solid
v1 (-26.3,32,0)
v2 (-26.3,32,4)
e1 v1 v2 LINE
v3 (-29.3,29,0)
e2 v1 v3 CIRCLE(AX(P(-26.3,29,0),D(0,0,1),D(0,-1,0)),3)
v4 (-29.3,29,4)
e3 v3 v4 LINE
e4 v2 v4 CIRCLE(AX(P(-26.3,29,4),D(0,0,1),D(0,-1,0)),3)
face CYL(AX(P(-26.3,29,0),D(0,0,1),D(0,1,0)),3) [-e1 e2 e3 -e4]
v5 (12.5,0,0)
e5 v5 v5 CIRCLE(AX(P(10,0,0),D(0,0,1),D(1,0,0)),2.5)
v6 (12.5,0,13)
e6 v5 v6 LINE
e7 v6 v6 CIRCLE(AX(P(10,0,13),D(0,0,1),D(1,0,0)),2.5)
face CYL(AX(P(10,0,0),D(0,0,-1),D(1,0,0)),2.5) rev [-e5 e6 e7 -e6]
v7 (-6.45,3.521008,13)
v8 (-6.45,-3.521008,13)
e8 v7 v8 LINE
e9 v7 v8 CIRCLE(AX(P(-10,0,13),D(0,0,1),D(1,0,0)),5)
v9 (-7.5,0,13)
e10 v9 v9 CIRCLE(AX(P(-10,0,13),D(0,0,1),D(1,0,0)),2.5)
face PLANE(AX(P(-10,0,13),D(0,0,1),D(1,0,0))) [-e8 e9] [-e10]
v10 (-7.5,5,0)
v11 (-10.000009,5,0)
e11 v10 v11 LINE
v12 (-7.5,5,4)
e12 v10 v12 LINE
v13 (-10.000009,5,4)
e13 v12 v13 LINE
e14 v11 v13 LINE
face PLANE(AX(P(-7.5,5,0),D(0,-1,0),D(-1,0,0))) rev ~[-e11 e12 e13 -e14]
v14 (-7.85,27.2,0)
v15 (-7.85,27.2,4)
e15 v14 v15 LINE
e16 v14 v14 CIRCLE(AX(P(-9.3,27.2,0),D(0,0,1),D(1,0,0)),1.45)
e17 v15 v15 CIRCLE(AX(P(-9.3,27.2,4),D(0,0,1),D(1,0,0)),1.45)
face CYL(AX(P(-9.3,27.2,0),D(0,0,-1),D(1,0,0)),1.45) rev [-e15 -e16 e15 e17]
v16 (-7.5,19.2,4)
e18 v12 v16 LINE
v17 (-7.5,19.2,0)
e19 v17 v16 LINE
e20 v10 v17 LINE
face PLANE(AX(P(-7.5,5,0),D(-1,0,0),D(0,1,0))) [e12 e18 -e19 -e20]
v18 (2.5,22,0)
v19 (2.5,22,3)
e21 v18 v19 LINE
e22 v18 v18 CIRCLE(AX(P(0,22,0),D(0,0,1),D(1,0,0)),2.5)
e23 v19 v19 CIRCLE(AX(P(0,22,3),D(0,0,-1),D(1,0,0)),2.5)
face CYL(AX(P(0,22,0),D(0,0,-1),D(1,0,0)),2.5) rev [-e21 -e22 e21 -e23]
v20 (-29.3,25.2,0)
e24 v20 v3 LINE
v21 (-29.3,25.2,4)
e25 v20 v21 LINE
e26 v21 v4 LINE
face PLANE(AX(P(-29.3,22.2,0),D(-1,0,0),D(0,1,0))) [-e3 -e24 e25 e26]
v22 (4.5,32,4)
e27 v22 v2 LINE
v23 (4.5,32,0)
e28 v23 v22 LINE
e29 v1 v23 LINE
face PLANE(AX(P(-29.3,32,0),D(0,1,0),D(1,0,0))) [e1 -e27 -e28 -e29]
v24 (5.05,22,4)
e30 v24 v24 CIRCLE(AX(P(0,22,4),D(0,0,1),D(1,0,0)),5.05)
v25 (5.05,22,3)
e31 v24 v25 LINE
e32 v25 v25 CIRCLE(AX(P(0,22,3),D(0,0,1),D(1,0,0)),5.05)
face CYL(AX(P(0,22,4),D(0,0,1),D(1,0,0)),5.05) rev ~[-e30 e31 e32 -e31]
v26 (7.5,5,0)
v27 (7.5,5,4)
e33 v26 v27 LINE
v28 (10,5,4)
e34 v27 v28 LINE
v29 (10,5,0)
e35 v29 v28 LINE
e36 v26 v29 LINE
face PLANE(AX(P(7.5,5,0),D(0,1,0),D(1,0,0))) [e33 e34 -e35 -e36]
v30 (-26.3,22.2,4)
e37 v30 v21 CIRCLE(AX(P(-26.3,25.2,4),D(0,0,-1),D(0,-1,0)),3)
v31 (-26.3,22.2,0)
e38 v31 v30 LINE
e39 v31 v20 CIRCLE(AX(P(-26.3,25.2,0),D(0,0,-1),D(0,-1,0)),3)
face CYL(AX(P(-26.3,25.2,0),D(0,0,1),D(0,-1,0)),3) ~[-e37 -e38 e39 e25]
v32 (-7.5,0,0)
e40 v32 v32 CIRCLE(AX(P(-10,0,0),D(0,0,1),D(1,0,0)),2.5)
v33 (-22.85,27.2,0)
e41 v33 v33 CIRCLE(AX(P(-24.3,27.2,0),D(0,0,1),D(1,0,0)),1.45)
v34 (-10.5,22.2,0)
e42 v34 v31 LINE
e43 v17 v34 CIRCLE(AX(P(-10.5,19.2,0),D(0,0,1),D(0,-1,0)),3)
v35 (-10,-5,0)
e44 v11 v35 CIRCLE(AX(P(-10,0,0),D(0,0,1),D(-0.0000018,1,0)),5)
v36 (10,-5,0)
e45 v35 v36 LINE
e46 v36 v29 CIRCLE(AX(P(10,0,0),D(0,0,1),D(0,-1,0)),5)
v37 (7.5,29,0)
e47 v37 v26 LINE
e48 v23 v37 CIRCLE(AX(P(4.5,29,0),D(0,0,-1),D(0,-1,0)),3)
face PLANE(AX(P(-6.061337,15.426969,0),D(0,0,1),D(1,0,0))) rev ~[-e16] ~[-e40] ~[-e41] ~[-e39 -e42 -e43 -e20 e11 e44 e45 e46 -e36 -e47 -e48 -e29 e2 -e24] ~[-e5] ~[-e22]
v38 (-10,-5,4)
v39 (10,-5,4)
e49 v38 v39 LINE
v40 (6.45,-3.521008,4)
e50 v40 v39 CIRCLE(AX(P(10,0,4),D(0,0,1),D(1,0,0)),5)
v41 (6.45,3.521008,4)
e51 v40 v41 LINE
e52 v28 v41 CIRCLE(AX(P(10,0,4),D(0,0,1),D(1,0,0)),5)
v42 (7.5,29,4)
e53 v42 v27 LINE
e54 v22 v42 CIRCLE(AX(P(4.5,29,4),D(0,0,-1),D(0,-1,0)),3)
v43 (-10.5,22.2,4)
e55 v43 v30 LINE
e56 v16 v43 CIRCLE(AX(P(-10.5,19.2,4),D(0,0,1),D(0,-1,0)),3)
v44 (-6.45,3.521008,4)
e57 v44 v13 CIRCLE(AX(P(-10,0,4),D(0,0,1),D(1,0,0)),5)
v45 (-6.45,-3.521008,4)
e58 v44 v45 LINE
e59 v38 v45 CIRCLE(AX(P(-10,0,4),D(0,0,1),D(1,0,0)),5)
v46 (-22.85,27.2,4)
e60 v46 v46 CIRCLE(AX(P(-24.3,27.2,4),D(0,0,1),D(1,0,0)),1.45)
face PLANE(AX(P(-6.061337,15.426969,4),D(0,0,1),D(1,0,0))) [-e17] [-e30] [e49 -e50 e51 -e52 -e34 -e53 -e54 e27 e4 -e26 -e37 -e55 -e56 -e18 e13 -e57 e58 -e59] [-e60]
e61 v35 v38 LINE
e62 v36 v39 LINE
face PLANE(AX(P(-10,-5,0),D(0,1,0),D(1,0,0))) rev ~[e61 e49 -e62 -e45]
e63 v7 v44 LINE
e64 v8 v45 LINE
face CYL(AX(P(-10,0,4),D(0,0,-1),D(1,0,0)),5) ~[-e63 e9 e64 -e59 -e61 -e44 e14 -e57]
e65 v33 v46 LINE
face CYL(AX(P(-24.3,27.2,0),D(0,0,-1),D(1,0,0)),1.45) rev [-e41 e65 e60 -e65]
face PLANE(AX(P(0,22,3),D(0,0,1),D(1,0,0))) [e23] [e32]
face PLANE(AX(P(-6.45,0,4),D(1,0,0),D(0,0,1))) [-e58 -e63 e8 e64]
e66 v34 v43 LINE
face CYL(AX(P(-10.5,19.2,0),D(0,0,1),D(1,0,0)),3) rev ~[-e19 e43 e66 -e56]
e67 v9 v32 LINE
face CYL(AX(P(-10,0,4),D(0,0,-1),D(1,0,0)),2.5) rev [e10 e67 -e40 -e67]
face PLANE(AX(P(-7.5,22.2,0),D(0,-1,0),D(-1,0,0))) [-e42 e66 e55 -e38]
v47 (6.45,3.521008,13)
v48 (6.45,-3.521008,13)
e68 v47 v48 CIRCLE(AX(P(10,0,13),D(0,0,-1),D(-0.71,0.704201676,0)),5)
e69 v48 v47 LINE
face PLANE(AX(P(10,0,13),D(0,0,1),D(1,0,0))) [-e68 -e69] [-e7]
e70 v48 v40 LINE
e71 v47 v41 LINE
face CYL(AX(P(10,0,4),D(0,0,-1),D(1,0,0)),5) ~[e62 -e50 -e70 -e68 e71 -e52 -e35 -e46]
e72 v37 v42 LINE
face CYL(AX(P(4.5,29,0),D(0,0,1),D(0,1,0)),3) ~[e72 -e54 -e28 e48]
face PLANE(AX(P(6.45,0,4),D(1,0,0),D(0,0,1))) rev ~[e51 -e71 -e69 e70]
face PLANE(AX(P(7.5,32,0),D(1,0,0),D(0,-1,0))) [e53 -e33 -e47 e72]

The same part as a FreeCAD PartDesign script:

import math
import FreeCAD as App
import Part
import Sketcher
from FreeCAD import Vector
Q = App.Units.Quantity


def edges_at(feature, points):
    """Names of the edges that pass closest to the given points."""
    edges = feature.Shape.Edges
    near = lambda p: min(range(len(edges)), key=lambda i: edges[i].distToShape(Part.Vertex(*p))[0])
    return sorted({f"Edge{near(p) + 1}" for p in points})

doc = App.newDocument("Part")
body = doc.addObject("PartDesign::Body", "Body")

# Sketch on XY plane
sketch1 = body.newObject("Sketcher::SketchObject", "Sketch")
sketch1.AttachmentSupport = (doc.getObject("XY_Plane"), [""])
sketch1.MapMode = "FlatFace"
sketch1.addGeometry([
    Part.LineSegment(Vector(-10, -5, 0), Vector(10, -5, 0)),  # 0
    Part.ArcOfCircle(Part.Circle(Vector(10, 0, 0), Vector(0, 0, 1), 5), math.radians(-90), math.radians(90)),  # 1
    Part.LineSegment(Vector(10, 5, 0), Vector(7.5, 5, 0)),  # 2
    Part.LineSegment(Vector(7.5, 5, 0), Vector(7.5, 32, 0)),  # 3
    Part.LineSegment(Vector(7.5, 32, 0), Vector(-29.3, 32, 0)),  # 4
    Part.LineSegment(Vector(-29.3, 32, 0), Vector(-29.3, 22.2, 0)),  # 5
    Part.LineSegment(Vector(-29.3, 22.2, 0), Vector(-7.5, 22.2, 0)),  # 6
    Part.LineSegment(Vector(-7.5, 22.2, 0), Vector(-7.5, 5, 0)),  # 7
    Part.LineSegment(Vector(-7.5, 5, 0), Vector(-10.000009, 5, 0)),  # 8
    Part.ArcOfCircle(Part.Circle(Vector(-10, 0, 0), Vector(0, 0, 1), 5), math.radians(90.000103), math.radians(270)),  # 9
    Part.Circle(Vector(-10, 0, 0), Vector(0, 0, 1), 2.5),  # 10
    Part.Circle(Vector(10, 0, 0), Vector(0, 0, 1), 2.5),  # 11
    Part.Circle(Vector(-24.3, 27.2, 0), Vector(0, 0, 1), 1.45),  # 12
    Part.Circle(Vector(-9.3, 27.2, 0), Vector(0, 0, 1), 1.45),  # 13
    Part.Circle(Vector(0, 22, 0), Vector(0, 0, 1), 2.5),  # 14
], False)
sketch1.addConstraint([
    Sketcher.Constraint("Tangent", 0, 2, 1, 1),
    Sketcher.Constraint("Tangent", 1, 2, 2, 1),
    Sketcher.Constraint("Coincident", 2, 2, 3, 1),
    Sketcher.Constraint("Coincident", 3, 2, 4, 1),
    Sketcher.Constraint("Coincident", 4, 2, 5, 1),
    Sketcher.Constraint("Coincident", 5, 2, 6, 1),
    Sketcher.Constraint("Coincident", 6, 2, 7, 1),
    Sketcher.Constraint("Coincident", 7, 2, 8, 1),
    Sketcher.Constraint("Tangent", 8, 2, 9, 1),
    Sketcher.Constraint("Tangent", 9, 2, 0, 1),
    Sketcher.Constraint("Horizontal", 0),
    Sketcher.Constraint("Horizontal", 2),
    Sketcher.Constraint("Vertical", 3),
    Sketcher.Constraint("Horizontal", 4),
    Sketcher.Constraint("Vertical", 5),
    Sketcher.Constraint("Horizontal", 6),
    Sketcher.Constraint("Vertical", 7),
    Sketcher.Constraint("Horizontal", 8),
    Sketcher.Constraint("Coincident", 10, 3, 9, 3),
    Sketcher.Constraint("Coincident", 11, 3, 1, 3),
    Sketcher.Constraint("Equal", 1, 9),
    Sketcher.Constraint("Equal", 10, 11),
    Sketcher.Constraint("Equal", 12, 13),
    Sketcher.Constraint("Equal", 11, 14),
    Sketcher.Constraint("Symmetric", 1, 3, 9, 3, -1, 1),
    Sketcher.Constraint("PointOnObject", 14, 3, -2),
    Sketcher.Constraint("Horizontal", 12, 3, 13, 3),
    Sketcher.Constraint("Diameter", 10, Q("5 mm")),
    Sketcher.Constraint("Radius", 1, Q("5 mm")),
    Sketcher.Constraint("Diameter", 12, Q("2.9 mm")),
    Sketcher.Constraint("DistanceX", 0, 1, 0, 2, Q("20 mm")),
    Sketcher.Constraint("DistanceY", 3, 1, 3, 2, Q("27 mm")),
    Sketcher.Constraint("DistanceX", 2, 2, 2, 1, Q("2.5 mm")),
    Sketcher.Constraint("DistanceX", 4, 2, 4, 1, Q("36.8 mm")),
    Sketcher.Constraint("DistanceX", 6, 1, 6, 2, Q("21.8 mm")),
    Sketcher.Constraint("DistanceY", 5, 2, 5, 1, Q("9.8 mm")),
    Sketcher.Constraint("DistanceY", -1, 1, 14, 3, Q("22 mm")),
    Sketcher.Constraint("DistanceX", 12, 3, 13, 3, Q("15 mm")),
    Sketcher.Constraint("DistanceX", 4, 2, 12, 3, Q("5 mm")),
    Sketcher.Constraint("DistanceY", 5, 2, 12, 3, Q("5 mm")),
])
pad1 = body.newObject("PartDesign::Pad", "Pad")
pad1.Profile = sketch1
pad1.Length = 4

# Sketch on XY plane
sketch2 = body.newObject("Sketcher::SketchObject", "Sketch001")
sketch2.AttachmentSupport = (doc.getObject("XY_Plane"), [""])
sketch2.MapMode = "FlatFace"
sketch2.AttachmentOffset = App.Placement(Vector(0, 0, 4), App.Rotation())
sketch2.addGeometry([
    Part.Circle(Vector(-10, 0, 0), Vector(0, 0, 1), 5),
    Part.Circle(Vector(-10, 0, 0), Vector(0, 0, 1), 2.5),
    Part.Circle(Vector(10, 0, 0), Vector(0, 0, 1), 5),
    Part.Circle(Vector(10, 0, 0), Vector(0, 0, 1), 2.5),
], False)
sketch2.addConstraint([
    Sketcher.Constraint("Coincident", 1, 3, 0, 3),
    Sketcher.Constraint("Coincident", 3, 3, 2, 3),
    Sketcher.Constraint("Equal", 0, 2),
    Sketcher.Constraint("Equal", 1, 3),
    Sketcher.Constraint("Symmetric", 0, 3, 2, 3, -1, 1),
    Sketcher.Constraint("PointOnObject", 0, 3, -1),
    Sketcher.Constraint("Diameter", 0, Q("10 mm")),
    Sketcher.Constraint("Diameter", 1, Q("5 mm")),
    Sketcher.Constraint("DistanceX", 0, 3, -1, 1, Q("10 mm")),
])
pad2 = body.newObject("PartDesign::Pad", "Pad001")
pad2.Profile = sketch2
pad2.Length = 9

# Sketch on XZ plane
sketch3 = body.newObject("Sketcher::SketchObject", "Sketch002")
sketch3.AttachmentSupport = (doc.getObject("XZ_Plane"), [""])
sketch3.MapMode = "FlatFace"
sketch3.addGeometry([
    Part.LineSegment(Vector(-6.45, 20.151024, 0), Vector(-6.45, 4, 0)),
    Part.LineSegment(Vector(-6.45, 4, 0), Vector(6.45, 4, 0)),
    Part.LineSegment(Vector(6.45, 4, 0), Vector(6.45, 20.151024, 0)),
    Part.LineSegment(Vector(6.45, 20.151024, 0), Vector(-6.45, 20.151024, 0)),
], False)
sketch3.addConstraint([
    Sketcher.Constraint("Coincident", 0, 2, 1, 1),
    Sketcher.Constraint("Coincident", 1, 2, 2, 1),
    Sketcher.Constraint("Coincident", 2, 2, 3, 1),
    Sketcher.Constraint("Coincident", 3, 2, 0, 1),
    Sketcher.Constraint("Vertical", 0),
    Sketcher.Constraint("Horizontal", 1),
    Sketcher.Constraint("Vertical", 2),
    Sketcher.Constraint("Horizontal", 3),
    Sketcher.Constraint("DistanceX", 1, 1, 1, 2, Q("12.9 mm")),
    Sketcher.Constraint("DistanceY", -1, 1, 0, 2, Q("4 mm")),
    Sketcher.Constraint("DistanceX", 0, 2, -1, 1, Q("6.45 mm")),
    Sketcher.Constraint("DistanceY", 0, 2, 0, 1, Q("16.151024 mm")),
])
pocket1 = body.newObject("PartDesign::Pocket", "Pocket")
pocket1.Profile = sketch3
pocket1.Type = "ThroughAll"
pocket1.Midplane = True
doc.recompute()

fillet = body.newObject("PartDesign::Fillet", "Fillet")
fillet.Base = (pocket1, edges_at(pocket1, [
    (-29.3, 22.2, 2),
    (-29.3, 32, 2),
    (-7.5, 22.2, 2),
    (7.5, 32, 2),
]))
fillet.Radius = 3

# Sketch on XY plane
sketch4 = body.newObject("Sketcher::SketchObject", "Sketch003")
sketch4.AttachmentSupport = (doc.getObject("XY_Plane"), [""])
sketch4.MapMode = "FlatFace"
sketch4.AttachmentOffset = App.Placement(Vector(0, 0, 4), App.Rotation())
sketch4.addGeometry(Part.Circle(Vector(0, 22, 0), Vector(0, 0, 1), 5.05), False)
sketch4.addConstraint([
    Sketcher.Constraint("PointOnObject", 0, 3, -2),
    Sketcher.Constraint("Diameter", 0, Q("10.1 mm")),
    Sketcher.Constraint("DistanceY", -1, 1, 0, 3, Q("22 mm")),
])
pocket2 = body.newObject("PartDesign::Pocket", "Pocket001")
pocket2.Profile = sketch4
pocket2.Length = 1

doc.recompute()
